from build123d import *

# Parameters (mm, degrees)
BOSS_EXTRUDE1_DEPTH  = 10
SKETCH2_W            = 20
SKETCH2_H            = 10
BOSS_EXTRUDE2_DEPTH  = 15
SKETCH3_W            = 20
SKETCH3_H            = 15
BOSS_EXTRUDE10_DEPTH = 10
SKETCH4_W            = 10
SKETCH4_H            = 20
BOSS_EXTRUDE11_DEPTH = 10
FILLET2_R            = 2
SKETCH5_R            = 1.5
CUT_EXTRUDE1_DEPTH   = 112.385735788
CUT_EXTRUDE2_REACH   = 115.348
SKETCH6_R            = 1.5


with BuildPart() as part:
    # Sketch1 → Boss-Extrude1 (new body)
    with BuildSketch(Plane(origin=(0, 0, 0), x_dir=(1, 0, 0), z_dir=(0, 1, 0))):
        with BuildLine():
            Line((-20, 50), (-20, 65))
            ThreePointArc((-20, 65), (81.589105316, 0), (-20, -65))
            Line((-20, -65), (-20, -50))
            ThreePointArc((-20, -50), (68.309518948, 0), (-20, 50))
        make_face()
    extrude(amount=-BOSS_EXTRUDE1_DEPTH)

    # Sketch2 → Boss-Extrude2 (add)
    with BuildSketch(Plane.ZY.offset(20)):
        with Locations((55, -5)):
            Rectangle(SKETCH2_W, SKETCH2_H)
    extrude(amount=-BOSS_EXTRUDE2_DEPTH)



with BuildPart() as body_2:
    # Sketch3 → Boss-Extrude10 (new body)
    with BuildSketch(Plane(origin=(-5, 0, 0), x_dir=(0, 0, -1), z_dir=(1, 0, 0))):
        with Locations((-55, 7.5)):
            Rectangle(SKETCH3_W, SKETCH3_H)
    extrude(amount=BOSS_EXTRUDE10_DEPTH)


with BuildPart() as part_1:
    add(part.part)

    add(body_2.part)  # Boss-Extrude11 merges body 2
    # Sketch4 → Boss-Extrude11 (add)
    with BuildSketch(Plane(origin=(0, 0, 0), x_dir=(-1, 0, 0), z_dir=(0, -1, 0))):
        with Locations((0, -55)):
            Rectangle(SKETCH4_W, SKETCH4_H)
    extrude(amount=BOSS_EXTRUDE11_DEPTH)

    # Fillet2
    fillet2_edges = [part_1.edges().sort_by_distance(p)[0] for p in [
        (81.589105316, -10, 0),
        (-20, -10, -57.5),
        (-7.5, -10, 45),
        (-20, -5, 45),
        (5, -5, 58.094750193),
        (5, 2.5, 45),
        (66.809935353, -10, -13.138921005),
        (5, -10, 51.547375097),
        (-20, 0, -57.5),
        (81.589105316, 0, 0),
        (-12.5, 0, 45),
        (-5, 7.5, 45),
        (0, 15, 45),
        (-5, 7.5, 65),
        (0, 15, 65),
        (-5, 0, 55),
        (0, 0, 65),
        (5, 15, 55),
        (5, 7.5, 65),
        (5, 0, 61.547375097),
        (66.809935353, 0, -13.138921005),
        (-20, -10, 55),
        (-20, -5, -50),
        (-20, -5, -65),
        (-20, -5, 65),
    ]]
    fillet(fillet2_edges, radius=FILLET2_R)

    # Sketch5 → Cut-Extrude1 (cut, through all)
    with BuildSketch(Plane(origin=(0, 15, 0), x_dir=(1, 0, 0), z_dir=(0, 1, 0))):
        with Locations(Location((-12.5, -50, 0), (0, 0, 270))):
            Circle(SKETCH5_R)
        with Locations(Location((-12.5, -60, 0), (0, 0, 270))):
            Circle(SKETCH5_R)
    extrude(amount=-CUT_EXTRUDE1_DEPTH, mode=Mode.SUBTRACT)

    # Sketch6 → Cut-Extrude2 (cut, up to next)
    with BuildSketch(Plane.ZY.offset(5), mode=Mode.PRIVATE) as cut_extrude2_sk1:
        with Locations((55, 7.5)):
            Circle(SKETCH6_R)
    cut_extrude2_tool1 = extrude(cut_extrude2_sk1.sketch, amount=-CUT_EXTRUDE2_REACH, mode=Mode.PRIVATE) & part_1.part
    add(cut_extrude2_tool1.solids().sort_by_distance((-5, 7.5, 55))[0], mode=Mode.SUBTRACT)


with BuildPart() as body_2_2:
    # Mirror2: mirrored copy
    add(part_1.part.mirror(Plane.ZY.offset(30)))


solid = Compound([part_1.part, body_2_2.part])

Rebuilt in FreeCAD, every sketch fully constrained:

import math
import FreeCAD as App
import Part
import Sketcher

V = App.Vector
Q = App.Units.Quantity


def edges_at(feature, points):
    """Names of the edges that pass closest to the given points."""
    edges = feature.Shape.Edges
    near = lambda p: min(range(len(edges)), key=lambda i: edges[i].distToShape(Part.Vertex(*p))[0])
    return sorted({f"Edge{near(p) + 1}" for p in points})

doc = App.newDocument("Part")
body = doc.addObject("PartDesign::Body", "Body")

sketch1 = body.newObject("Sketcher::SketchObject", "Sketch")
sketch1.AttachmentSupport = (doc.getObject("XZ_Plane"), [""])
sketch1.MapMode = "FlatFace"
sketch1.addGeometry([
    Part.LineSegment(V(-20, -65, 0), V(-20, -50, 0)),
    Part.ArcOfCircle(Part.Circle(V(10, 0, 0), V(0, 0, 1), 58), math.radians(-121), math.radians(121)),
    Part.LineSegment(V(-20, 50, 0), V(-20, 65, 0)),
    Part.ArcOfCircle(Part.Circle(V(10, 0, 0), V(0, 0, 1), 72), math.radians(-115), math.radians(115)),
], False)
sketch1.addConstraint([
    Sketcher.Constraint("Coincident", 0, 2, 1, 1),
    Sketcher.Constraint("Coincident", 1, 2, 2, 1),
    Sketcher.Constraint("Coincident", 2, 2, 3, 2),
    Sketcher.Constraint("Coincident", 3, 1, 0, 1),
    Sketcher.Constraint("Vertical", 0),
    Sketcher.Constraint("Vertical", 2),
    Sketcher.Constraint("Coincident", 3, 3, 1, 3),
    Sketcher.Constraint("Symmetric", 0, 2, 1, 2, -1),
    Sketcher.Constraint("DistanceY", 0, 1, 0, 2, Q("15 mm")),
    Sketcher.Constraint("DistanceX", -1, 1, 1, 3, Q("10 mm")),
    Sketcher.Constraint("DistanceX", 0, 2, -1, 1, Q("20 mm")),
    Sketcher.Constraint("DistanceY", 0, 2, -1, 1, Q("50 mm")),
])
pad1 = body.newObject("PartDesign::Pad", "Pad")
pad1.Profile = sketch1
pad1.Length = 10

sketch2 = body.newObject("Sketcher::SketchObject", "Sketch001")
sketch2.AttachmentSupport = (doc.getObject("YZ_Plane"), [""])
sketch2.MapMode = "FlatFace"
sketch2.AttachmentOffset = App.Placement(V(0, 0, -20), App.Rotation())
sketch2.addGeometry([
    Part.LineSegment(V(0, 45, 0), V(-10, 45, 0)),
    Part.LineSegment(V(-10, 45, 0), V(-10, 65, 0)),
    Part.LineSegment(V(-10, 65, 0), V(0, 65, 0)),
    Part.LineSegment(V(0, 65, 0), V(0, 45, 0)),
], False)
sketch2.addConstraint([
    Sketcher.Constraint("Coincident", 0, 2, 1, 1),
    Sketcher.Constraint("Coincident", 1, 2, 2, 1),
    Sketcher.Constraint("Coincident", 2, 2, 3, 1),
    Sketcher.Constraint("Coincident", 3, 2, 0, 1),
    Sketcher.Constraint("Horizontal", 0),
    Sketcher.Constraint("Vertical", 1),
    Sketcher.Constraint("Horizontal", 2),
    Sketcher.Constraint("Vertical", 3),
    Sketcher.Constraint("PointOnObject", 2, 2, -2),
    Sketcher.Constraint("DistanceX", 0, 2, 0, 1, Q("10 mm")),
    Sketcher.Constraint("DistanceY", 1, 1, 1, 2, Q("20 mm")),
    Sketcher.Constraint("DistanceY", -1, 1, 0, 2, Q("45 mm")),
])
pad2 = body.newObject("PartDesign::Pad", "Pad001")
pad2.Profile = sketch2
pad2.Length = 15
body2 = doc.addObject("PartDesign::Body", "Body001")

sketch3 = body2.newObject("Sketcher::SketchObject", "Sketch002")
sketch3.AttachmentSupport = (doc.getObject("YZ_Plane001"), [""])
sketch3.MapMode = "FlatFace"
sketch3.AttachmentOffset = App.Placement(V(0, 0, -5), App.Rotation())
sketch3.addGeometry([
    Part.LineSegment(V(15, 65, 0), V(0, 65, 0)),
    Part.LineSegment(V(0, 65, 0), V(0, 45, 0)),
    Part.LineSegment(V(0, 45, 0), V(15, 45, 0)),
    Part.LineSegment(V(15, 45, 0), V(15, 65, 0)),
], False)
sketch3.addConstraint([
    Sketcher.Constraint("Coincident", 0, 2, 1, 1),
    Sketcher.Constraint("Coincident", 1, 2, 2, 1),
    Sketcher.Constraint("Coincident", 2, 2, 3, 1),
    Sketcher.Constraint("Coincident", 3, 2, 0, 1),
    Sketcher.Constraint("Horizontal", 0),
    Sketcher.Constraint("Vertical", 1),
    Sketcher.Constraint("Horizontal", 2),
    Sketcher.Constraint("Vertical", 3),
    Sketcher.Constraint("PointOnObject", 0, 2, -2),
    Sketcher.Constraint("DistanceX", 0, 2, 0, 1, Q("15 mm")),
    Sketcher.Constraint("DistanceY", 1, 2, 1, 1, Q("20 mm")),
    Sketcher.Constraint("DistanceY", -1, 1, 0, 2, Q("65 mm")),
])
pad3 = body2.newObject("PartDesign::Pad", "Pad002")
pad3.Profile = sketch3
pad3.Length = 10
doc.recompute()

boolean = body.newObject("PartDesign::Boolean", "Boolean")
boolean.Type = "Fuse"
boolean.addObjects([body2])

sketch4 = body.newObject("Sketcher::SketchObject", "Sketch003")
sketch4.AttachmentSupport = (doc.getObject("XZ_Plane"), [""])
sketch4.MapMode = "FlatFace"
sketch4.addGeometry([
    Part.LineSegment(V(5, 45, 0), V(5, 65, 0)),
    Part.LineSegment(V(5, 65, 0), V(-5, 65, 0)),
    Part.LineSegment(V(-5, 65, 0), V(-5, 45, 0)),
    Part.LineSegment(V(-5, 45, 0), V(5, 45, 0)),
], False)
sketch4.addConstraint([
    Sketcher.Constraint("Coincident", 0, 2, 1, 1),
    Sketcher.Constraint("Coincident", 1, 2, 2, 1),
    Sketcher.Constraint("Coincident", 2, 2, 3, 1),
    Sketcher.Constraint("Coincident", 3, 2, 0, 1),
    Sketcher.Constraint("Vertical", 0),
    Sketcher.Constraint("Horizontal", 1),
    Sketcher.Constraint("Vertical", 2),
    Sketcher.Constraint("Horizontal", 3),
    Sketcher.Constraint("DistanceX", 1, 2, 1, 1, Q("10 mm")),
    Sketcher.Constraint("DistanceY", 0, 1, 0, 2, Q("20 mm")),
    Sketcher.Constraint("DistanceX", -1, 1, 0, 2, Q("5 mm")),
    Sketcher.Constraint("DistanceY", -1, 1, 0, 2, Q("65 mm")),
])
pad4 = body.newObject("PartDesign::Pad", "Pad003")
pad4.Profile = sketch4
pad4.Length = 10
doc.recompute()

fillet = body.newObject("PartDesign::Fillet", "Fillet")
fillet.Base = (pad4, edges_at(pad4, [
    (81.589, -10, 0),
    (-20, -10, -57.5),
    (-7.5, -10, 45),
    (-20, -5, 45),
    (5, -5, 58.095),
    (5, 2.5, 45),
    (66.81, -10, -13.139),
    (5, -10, 51.547),
    (-20, 0, -57.5),
    (81.589, 0, 0),
    (-12.5, 0, 45),
    (-5, 7.5, 45),
    (0, 15, 45),
    (-5, 7.5, 65),
    (0, 15, 65),
    (-5, 0, 55),
    (0, 0, 65),
    (5, 15, 55),
    (5, 7.5, 65),
    (5, 0, 61.547),
    (66.81, 0, -13.139),
    (-20, -10, 55),
    (-20, -5, -50),
    (-20, -5, -65),
    (-20, -5, 65),
]))
fillet.Radius = 2

sketch5 = body.newObject("Sketcher::SketchObject", "Sketch004")
sketch5.AttachmentSupport = (doc.getObject("XZ_Plane"), [""])
sketch5.MapMode = "FlatFace"
sketch5.AttachmentOffset = App.Placement(V(0, 0, -15), App.Rotation())
sketch5.addGeometry([
    Part.Circle(V(-12.5, 50, 0), V(0, 0, 1), 1.5),
    Part.Circle(V(-12.5, 60, 0), V(0, 0, 1), 1.5),
], False)
sketch5.addConstraint([
    Sketcher.Constraint("Equal", 0, 1),
    Sketcher.Constraint("Vertical", 0, 3, 1, 3),
    Sketcher.Constraint("Diameter", 0, Q("3 mm")),
    Sketcher.Constraint("DistanceY", -1, 1, 0, 3, Q("50 mm")),
    Sketcher.Constraint("DistanceY", -1, 1, 1, 3, Q("60 mm")),
    Sketcher.Constraint("DistanceX", 0, 3, -1, 1, Q("12.5 mm")),
])
pocket1 = body.newObject("PartDesign::Pocket", "Pocket")
pocket1.Profile = sketch5
pocket1.Type = "ThroughAll"
pocket1.Reversed = True

sketch6 = body.newObject("Sketcher::SketchObject", "Sketch005")
sketch6.AttachmentSupport = (doc.getObject("YZ_Plane"), [""])
sketch6.MapMode = "FlatFace"
sketch6.AttachmentOffset = App.Placement(V(0, 0, -5), App.Rotation())
sketch6.addGeometry(Part.Circle(V(7.5, 55, 0), V(0, 0, 1), 1.5), False)
sketch6.addConstraint([
    Sketcher.Constraint("Diameter", 0, Q("3 mm")),
    Sketcher.Constraint("DistanceY", -1, 1, 0, 3, Q("55 mm")),
    Sketcher.Constraint("DistanceX", -1, 1, 0, 3, Q("7.5 mm")),
])
pocket2 = body.newObject("PartDesign::Pocket", "Pocket001")
pocket2.Profile = sketch6
pocket2.Type = "UpToFirst"
pocket2.Reversed = True
body3 = doc.addObject("PartDesign::Body", "Body002")
doc.recompute()

mirroring = doc.addObject("Part::Mirroring", "Mirroring")
mirroring.Source = body
mirroring.Base = V(-30, 0, 0)
mirroring.Normal = V(-1, 0, 0)
body3.BaseFeature = mirroring
doc.recompute()
mirroring.Visibility = False

doc.recompute()
